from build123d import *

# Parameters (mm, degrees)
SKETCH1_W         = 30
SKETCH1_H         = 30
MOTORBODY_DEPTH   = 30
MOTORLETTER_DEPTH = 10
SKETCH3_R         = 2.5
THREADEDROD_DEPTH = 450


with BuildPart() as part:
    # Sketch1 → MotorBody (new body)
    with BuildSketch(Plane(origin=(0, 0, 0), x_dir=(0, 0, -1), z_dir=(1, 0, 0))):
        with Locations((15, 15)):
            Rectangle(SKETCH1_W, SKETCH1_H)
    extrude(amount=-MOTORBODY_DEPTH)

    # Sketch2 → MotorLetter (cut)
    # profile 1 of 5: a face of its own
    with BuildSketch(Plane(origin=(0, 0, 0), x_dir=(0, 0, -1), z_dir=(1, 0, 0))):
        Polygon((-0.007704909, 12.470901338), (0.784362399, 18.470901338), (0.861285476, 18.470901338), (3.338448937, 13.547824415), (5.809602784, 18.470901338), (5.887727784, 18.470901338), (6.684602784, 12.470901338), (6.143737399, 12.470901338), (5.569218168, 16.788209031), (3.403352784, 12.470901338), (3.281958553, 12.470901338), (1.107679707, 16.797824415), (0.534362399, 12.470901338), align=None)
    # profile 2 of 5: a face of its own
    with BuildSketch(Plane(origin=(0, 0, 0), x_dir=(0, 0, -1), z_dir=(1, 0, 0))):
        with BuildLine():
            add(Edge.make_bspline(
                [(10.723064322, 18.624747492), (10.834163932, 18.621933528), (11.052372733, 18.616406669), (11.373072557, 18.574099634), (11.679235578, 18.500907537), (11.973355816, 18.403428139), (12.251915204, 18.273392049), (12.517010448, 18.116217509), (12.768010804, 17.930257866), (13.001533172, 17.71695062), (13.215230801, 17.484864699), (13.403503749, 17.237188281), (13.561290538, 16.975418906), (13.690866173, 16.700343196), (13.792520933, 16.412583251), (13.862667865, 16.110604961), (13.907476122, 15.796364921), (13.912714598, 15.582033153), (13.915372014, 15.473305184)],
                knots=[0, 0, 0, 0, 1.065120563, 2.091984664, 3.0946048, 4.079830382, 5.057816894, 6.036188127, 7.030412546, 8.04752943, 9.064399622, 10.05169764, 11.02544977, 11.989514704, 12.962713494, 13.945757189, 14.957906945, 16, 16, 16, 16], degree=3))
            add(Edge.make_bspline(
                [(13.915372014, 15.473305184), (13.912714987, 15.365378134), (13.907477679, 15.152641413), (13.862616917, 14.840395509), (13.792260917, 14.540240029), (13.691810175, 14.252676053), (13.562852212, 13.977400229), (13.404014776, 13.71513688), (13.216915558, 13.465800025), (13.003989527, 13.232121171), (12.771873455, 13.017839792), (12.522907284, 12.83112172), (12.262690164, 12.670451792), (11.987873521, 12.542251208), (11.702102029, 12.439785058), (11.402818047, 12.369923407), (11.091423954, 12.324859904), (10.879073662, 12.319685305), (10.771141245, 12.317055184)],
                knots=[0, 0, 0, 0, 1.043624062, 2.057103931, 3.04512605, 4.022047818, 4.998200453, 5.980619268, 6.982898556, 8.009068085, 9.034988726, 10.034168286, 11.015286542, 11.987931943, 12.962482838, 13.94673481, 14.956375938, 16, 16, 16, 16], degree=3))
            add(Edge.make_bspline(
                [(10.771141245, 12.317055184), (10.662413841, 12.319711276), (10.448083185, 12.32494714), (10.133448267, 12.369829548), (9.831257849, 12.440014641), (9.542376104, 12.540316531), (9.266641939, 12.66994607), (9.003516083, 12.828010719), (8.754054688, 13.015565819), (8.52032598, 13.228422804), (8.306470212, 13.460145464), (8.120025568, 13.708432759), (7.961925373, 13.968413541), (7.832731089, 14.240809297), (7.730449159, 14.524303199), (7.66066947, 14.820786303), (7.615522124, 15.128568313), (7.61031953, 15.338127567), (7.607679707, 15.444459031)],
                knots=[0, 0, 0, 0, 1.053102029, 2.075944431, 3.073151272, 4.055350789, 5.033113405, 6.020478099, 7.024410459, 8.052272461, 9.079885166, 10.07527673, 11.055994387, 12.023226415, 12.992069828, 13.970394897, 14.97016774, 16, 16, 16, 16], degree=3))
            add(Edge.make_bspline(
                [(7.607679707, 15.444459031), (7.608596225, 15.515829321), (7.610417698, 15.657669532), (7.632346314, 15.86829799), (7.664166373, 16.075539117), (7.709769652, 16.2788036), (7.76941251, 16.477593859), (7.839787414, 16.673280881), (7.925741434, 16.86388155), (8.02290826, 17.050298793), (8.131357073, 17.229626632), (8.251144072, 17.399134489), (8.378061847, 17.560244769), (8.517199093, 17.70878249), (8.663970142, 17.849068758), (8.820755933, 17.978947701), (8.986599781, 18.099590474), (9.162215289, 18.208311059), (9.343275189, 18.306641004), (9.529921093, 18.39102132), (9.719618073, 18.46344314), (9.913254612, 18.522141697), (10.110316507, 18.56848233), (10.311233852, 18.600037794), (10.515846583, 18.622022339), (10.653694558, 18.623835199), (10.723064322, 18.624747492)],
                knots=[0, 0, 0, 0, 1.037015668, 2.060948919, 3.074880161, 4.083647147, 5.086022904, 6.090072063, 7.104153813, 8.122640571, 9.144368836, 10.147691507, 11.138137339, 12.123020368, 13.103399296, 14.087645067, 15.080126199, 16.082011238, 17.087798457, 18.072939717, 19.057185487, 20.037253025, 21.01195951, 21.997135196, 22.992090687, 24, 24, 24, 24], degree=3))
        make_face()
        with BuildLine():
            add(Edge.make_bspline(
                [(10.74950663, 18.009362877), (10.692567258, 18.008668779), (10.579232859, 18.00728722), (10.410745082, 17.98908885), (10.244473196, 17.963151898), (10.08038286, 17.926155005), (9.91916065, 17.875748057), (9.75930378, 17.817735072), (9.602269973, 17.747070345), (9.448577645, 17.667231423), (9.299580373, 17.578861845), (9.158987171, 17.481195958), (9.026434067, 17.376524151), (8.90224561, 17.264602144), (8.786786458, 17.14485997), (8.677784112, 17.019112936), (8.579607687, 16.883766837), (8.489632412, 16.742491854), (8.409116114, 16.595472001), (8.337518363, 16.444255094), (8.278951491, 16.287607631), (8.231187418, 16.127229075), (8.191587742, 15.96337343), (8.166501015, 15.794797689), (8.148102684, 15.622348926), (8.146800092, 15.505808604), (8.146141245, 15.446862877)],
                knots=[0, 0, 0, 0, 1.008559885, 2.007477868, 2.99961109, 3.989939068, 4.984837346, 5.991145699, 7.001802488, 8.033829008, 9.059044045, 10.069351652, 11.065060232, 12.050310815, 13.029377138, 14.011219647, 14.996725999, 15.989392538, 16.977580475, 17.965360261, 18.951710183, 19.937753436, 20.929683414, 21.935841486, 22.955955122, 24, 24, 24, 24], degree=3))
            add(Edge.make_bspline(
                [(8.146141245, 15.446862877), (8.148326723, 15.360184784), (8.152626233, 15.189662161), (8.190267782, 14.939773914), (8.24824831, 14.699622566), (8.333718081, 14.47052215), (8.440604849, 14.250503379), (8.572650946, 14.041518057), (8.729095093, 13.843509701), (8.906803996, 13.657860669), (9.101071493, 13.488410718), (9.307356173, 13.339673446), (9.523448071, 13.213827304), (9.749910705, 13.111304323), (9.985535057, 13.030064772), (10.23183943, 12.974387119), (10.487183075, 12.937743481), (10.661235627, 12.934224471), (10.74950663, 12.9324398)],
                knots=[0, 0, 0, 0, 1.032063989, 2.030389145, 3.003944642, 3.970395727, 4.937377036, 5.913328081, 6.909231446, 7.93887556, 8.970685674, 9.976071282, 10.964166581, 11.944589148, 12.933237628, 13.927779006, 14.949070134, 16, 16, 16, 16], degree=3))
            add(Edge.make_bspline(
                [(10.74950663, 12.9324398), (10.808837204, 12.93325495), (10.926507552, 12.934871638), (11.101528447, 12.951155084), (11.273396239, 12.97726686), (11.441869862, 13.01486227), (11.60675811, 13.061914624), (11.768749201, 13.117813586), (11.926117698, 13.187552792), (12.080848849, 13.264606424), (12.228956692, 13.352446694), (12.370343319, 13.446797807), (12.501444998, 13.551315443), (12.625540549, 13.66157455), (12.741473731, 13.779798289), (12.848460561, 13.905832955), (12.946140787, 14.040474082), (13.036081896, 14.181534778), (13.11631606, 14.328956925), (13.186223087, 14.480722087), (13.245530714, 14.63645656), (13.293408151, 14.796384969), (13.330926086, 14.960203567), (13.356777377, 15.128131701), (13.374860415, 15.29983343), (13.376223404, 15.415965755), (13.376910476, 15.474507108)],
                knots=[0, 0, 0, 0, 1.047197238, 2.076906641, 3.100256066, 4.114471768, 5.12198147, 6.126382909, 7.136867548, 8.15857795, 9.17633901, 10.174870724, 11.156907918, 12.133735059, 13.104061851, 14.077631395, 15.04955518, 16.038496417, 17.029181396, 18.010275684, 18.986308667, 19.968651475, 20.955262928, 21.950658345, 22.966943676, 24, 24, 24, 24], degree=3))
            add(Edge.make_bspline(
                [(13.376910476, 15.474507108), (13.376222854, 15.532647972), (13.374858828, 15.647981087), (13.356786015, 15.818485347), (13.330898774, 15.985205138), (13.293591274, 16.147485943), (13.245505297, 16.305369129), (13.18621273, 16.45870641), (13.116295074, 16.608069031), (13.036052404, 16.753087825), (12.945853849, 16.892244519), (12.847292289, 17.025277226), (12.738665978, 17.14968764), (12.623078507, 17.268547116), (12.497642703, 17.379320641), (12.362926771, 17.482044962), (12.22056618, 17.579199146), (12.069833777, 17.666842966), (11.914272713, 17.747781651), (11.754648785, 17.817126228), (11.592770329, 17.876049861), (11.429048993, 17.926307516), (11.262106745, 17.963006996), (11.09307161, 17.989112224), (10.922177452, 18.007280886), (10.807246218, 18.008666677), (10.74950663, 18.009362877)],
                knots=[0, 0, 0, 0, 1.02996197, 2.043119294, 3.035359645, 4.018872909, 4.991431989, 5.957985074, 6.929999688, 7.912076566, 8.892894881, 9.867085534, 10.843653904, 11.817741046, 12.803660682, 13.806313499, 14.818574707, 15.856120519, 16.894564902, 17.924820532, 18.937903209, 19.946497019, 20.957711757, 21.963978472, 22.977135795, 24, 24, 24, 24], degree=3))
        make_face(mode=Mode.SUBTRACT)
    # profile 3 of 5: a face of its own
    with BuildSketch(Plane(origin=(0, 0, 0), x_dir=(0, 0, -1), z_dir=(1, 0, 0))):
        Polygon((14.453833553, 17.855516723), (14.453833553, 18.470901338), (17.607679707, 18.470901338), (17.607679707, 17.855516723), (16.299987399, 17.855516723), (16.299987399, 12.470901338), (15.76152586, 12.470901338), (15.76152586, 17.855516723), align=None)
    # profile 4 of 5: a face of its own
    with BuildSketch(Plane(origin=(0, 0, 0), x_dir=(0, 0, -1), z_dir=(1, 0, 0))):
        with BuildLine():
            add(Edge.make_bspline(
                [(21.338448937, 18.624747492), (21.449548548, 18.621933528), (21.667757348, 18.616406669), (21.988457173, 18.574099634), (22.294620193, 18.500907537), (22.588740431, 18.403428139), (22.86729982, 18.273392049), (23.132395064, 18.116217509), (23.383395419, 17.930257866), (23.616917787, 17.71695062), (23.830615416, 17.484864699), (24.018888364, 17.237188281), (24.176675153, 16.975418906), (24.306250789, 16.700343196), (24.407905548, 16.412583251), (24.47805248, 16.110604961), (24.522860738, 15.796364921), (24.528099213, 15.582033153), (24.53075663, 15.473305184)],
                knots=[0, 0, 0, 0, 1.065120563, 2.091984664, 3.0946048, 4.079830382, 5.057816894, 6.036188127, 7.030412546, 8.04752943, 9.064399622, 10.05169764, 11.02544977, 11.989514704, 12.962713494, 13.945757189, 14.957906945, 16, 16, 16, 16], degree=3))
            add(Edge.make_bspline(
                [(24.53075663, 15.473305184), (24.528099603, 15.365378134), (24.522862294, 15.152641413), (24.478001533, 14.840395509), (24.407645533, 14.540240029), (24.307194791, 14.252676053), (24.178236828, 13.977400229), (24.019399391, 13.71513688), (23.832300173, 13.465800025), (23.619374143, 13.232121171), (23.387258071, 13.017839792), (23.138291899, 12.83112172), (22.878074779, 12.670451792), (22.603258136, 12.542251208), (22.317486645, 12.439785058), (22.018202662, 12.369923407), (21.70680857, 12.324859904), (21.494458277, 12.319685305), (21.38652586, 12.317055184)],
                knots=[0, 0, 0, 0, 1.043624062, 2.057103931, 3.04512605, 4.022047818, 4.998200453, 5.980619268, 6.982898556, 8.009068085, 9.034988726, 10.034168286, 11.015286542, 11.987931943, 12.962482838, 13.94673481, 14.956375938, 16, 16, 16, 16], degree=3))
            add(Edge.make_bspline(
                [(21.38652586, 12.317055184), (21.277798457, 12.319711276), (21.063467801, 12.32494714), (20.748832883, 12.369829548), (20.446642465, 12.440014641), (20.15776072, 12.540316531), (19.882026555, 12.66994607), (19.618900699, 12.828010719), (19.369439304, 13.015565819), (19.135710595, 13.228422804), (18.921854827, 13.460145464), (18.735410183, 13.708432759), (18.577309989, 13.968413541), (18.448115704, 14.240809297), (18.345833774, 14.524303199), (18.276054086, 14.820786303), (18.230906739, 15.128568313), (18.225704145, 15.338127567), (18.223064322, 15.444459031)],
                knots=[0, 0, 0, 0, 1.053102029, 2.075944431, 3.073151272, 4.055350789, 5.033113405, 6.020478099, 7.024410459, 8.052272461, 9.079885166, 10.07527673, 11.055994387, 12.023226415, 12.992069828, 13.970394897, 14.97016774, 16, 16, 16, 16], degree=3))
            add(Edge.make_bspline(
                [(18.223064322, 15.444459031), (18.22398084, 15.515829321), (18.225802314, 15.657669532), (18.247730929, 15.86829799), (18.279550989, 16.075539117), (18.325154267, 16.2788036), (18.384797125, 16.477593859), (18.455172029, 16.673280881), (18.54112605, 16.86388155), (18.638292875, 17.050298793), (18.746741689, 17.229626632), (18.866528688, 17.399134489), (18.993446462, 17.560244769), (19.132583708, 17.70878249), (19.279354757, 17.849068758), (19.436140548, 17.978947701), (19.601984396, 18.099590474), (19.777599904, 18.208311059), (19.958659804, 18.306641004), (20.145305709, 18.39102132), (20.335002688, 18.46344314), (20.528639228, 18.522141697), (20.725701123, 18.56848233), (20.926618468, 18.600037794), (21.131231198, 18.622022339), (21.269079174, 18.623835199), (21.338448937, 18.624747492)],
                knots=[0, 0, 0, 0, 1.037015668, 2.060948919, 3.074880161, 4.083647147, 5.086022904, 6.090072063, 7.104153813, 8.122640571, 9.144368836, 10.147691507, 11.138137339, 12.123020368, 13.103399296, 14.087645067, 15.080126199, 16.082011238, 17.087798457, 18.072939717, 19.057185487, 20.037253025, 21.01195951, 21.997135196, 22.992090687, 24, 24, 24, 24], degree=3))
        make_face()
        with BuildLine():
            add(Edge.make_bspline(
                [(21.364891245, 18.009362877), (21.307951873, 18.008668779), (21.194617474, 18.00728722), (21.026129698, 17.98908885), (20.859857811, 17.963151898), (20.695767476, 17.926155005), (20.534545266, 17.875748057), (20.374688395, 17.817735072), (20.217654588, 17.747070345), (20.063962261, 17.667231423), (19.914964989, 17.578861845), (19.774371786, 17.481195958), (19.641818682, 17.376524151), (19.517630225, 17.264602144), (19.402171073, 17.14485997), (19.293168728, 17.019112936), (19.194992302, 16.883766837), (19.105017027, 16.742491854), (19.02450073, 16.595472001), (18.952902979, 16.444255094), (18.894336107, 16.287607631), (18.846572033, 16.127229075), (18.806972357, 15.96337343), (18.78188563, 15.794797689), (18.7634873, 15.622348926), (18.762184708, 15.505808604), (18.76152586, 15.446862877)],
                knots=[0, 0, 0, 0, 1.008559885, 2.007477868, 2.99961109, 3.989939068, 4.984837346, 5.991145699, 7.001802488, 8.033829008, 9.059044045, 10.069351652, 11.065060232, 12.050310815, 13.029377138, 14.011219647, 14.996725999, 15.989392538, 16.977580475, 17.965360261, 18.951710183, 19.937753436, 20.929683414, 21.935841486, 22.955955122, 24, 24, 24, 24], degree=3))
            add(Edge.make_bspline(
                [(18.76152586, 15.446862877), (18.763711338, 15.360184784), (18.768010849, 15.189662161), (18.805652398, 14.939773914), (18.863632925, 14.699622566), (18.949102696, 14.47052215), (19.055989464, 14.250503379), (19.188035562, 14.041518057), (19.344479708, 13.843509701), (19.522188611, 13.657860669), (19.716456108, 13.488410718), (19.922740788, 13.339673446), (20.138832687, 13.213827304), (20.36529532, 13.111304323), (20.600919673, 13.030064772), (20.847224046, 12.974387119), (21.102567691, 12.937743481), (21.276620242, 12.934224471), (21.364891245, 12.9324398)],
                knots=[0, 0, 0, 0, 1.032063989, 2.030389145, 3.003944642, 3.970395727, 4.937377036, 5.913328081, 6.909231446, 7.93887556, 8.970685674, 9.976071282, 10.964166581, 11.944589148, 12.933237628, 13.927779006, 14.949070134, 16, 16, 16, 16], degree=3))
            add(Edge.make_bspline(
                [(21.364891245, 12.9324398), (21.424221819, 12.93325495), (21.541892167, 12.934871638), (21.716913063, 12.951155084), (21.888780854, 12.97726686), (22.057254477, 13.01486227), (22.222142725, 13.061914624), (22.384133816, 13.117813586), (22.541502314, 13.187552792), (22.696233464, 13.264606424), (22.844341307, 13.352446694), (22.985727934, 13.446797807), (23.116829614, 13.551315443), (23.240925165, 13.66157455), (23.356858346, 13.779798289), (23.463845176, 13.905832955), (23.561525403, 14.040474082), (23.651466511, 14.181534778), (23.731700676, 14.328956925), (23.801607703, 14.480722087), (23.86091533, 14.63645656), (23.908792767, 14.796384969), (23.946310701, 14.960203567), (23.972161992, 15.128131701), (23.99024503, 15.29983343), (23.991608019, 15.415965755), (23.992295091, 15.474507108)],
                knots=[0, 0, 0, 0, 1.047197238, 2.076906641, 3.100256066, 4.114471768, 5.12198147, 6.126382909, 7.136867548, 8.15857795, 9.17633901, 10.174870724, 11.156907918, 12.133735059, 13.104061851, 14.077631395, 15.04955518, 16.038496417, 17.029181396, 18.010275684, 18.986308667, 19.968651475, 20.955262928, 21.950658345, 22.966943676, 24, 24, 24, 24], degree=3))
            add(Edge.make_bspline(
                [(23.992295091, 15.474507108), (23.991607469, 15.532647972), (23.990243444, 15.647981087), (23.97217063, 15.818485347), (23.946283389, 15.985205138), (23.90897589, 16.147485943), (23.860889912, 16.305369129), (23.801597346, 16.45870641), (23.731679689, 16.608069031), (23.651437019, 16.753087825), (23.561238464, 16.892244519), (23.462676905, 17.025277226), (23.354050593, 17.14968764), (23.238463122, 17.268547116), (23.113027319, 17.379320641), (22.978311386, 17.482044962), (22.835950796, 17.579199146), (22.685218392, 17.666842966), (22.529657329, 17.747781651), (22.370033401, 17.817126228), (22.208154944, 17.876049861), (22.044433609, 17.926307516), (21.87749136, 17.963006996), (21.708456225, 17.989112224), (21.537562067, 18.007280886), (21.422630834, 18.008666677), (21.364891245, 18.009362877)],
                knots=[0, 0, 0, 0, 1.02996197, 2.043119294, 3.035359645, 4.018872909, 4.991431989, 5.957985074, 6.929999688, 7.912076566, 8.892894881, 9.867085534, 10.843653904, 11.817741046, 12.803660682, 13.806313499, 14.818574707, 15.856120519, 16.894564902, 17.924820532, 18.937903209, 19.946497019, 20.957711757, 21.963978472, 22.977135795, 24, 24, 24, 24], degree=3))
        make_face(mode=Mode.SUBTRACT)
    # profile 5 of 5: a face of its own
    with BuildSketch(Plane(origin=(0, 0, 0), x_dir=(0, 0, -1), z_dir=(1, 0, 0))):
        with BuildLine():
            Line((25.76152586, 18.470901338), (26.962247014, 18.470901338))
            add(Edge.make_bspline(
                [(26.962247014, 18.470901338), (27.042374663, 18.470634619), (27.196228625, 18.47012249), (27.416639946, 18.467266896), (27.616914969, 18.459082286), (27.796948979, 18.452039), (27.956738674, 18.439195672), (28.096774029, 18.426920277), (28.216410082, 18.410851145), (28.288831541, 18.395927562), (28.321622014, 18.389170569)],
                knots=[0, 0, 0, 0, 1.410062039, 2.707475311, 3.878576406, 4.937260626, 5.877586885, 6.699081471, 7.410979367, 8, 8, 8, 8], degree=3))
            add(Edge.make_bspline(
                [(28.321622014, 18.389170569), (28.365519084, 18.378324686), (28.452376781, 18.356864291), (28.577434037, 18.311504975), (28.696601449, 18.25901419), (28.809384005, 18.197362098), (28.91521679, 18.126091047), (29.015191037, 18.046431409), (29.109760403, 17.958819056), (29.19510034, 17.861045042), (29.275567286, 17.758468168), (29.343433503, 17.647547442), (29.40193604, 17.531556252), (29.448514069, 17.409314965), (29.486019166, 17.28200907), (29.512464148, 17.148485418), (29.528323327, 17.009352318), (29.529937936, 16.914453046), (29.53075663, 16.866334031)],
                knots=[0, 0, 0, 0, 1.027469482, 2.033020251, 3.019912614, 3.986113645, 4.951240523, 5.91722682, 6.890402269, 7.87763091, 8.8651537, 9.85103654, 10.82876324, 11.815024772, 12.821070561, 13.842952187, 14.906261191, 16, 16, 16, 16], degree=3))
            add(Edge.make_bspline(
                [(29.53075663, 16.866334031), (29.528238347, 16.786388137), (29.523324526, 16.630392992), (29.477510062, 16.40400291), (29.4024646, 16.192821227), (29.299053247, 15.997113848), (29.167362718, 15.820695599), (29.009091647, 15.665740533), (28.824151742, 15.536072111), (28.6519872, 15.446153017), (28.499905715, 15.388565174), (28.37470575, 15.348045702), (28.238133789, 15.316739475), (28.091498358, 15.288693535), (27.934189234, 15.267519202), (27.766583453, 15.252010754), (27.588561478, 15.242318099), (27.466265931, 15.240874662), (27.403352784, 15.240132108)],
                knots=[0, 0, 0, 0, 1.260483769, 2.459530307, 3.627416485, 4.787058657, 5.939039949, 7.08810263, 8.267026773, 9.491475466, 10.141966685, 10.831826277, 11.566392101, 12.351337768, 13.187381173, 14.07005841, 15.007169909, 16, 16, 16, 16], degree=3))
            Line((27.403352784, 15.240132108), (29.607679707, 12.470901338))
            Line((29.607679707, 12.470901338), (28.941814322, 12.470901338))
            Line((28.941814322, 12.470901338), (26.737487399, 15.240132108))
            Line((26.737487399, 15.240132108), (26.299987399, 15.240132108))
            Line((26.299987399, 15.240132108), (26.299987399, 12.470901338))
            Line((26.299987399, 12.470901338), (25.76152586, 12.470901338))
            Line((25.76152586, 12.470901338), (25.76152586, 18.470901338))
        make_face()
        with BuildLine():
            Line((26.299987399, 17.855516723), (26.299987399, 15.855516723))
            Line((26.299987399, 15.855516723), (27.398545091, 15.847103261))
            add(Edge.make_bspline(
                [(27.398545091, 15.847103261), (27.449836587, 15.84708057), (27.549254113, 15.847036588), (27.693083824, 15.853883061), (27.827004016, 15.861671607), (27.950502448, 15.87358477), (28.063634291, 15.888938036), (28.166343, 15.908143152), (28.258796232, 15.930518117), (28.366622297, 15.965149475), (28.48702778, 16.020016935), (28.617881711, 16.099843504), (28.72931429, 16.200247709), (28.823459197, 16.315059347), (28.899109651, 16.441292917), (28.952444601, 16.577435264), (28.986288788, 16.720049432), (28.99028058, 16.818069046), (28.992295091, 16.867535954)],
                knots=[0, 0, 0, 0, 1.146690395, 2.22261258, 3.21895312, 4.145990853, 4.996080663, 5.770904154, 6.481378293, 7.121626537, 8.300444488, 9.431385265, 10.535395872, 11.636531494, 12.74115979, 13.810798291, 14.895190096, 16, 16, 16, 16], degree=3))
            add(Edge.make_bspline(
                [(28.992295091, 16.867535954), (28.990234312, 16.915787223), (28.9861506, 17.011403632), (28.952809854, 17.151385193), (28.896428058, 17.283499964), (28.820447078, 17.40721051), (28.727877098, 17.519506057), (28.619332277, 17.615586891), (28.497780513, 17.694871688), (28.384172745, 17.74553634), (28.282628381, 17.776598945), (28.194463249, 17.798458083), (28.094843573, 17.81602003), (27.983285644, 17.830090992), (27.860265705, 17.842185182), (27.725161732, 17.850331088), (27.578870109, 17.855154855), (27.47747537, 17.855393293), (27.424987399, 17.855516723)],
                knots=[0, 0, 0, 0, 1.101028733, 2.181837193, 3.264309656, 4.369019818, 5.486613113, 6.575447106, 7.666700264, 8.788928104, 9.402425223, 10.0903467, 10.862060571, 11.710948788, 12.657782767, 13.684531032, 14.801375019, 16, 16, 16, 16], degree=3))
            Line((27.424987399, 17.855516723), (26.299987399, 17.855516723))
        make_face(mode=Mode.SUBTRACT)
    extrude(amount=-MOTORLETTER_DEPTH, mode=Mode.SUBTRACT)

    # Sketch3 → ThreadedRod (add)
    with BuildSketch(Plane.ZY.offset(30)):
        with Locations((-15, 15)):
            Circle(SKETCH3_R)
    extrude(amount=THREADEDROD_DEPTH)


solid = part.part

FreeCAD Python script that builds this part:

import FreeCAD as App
import Part
import Sketcher
from FreeCAD import Vector
Q = App.Units.Quantity


def add_polygon(sketch, points):
    """Adds a closed chain of lines whose ends are joined by coincident constraints."""
    first, n = sketch.GeometryCount, len(points)
    for a, b in zip(points, points[1:] + points[:1]):
        sketch.addGeometry(Part.LineSegment(App.Vector(*a, 0), App.Vector(*b, 0)), False)
    for i in range(n):
        sketch.addConstraint(Sketcher.Constraint("Coincident", first + i, 2, first + (i + 1) % n, 1))

doc = App.newDocument("Part")
body = doc.addObject("PartDesign::Body", "Body")

sketch1 = body.newObject("Sketcher::SketchObject", "Sketch")
sketch1.AttachmentSupport = (doc.getObject("YZ_Plane"), [""])
sketch1.MapMode = "FlatFace"
add_polygon(sketch1, [(30, 0), (0, 0), (0, -30), (30, -30)])
sketch1.addConstraint(Sketcher.Constraint("Horizontal", 0))
sketch1.addConstraint(Sketcher.Constraint("Vertical", 1))
sketch1.addConstraint(Sketcher.Constraint("Horizontal", 2))
sketch1.addConstraint(Sketcher.Constraint("Vertical", 3))
sketch1.addConstraint(Sketcher.Constraint("Coincident", 0, 2, -1, 1))
sketch1.addConstraint(Sketcher.Constraint("Equal", 2, 1))
sketch1.addConstraint(Sketcher.Constraint("DistanceX", 0, 2, 0, 1, Q("30 mm")))
pad1 = body.newObject("PartDesign::Pad", "Pad")
pad1.Profile = sketch1
pad1.Length = 30
pad1.Reversed = True

sketch2 = body.newObject("Sketcher::SketchObject", "Sketch001")
sketch2.AttachmentSupport = (doc.getObject("YZ_Plane"), [""])
sketch2.MapMode = "FlatFace"
add_polygon(sketch2, [(18.470901, -0.784362), (12.470901, 0.007705), (12.470901, -0.534362), (16.797824, -1.10768), (12.470901, -3.281959), (12.470901, -3.403353), (16.788209, -5.569218), (12.470901, -6.143737), (12.470901, -6.684603), (18.470901, -5.887728), (18.470901, -5.809603), (13.547824, -3.338449), (18.470901, -0.861285)])
sketch2.addGeometry(Part.BSplineCurve([Vector(18.624747, -10.723064, 0), Vector(18.621934, -10.834164, 0), Vector(18.616407, -11.052373, 0), Vector(18.5741, -11.373073, 0), Vector(18.500908, -11.679236, 0), Vector(18.403428, -11.973356, 0), Vector(18.273392, -12.251915, 0), Vector(18.116218, -12.51701, 0), Vector(17.930258, -12.768011, 0), Vector(17.716951, -13.001533, 0), Vector(17.484865, -13.215231, 0), Vector(17.237188, -13.403504, 0), Vector(16.975419, -13.561291, 0), Vector(16.700343, -13.690866, 0), Vector(16.412583, -13.792521, 0), Vector(16.110605, -13.862668, 0), Vector(15.796365, -13.907476, 0), Vector(15.582033, -13.912715, 0), Vector(15.473305, -13.915372, 0)], [4, 1, 1, 1, 1, 1, 1, 1, 1, 1, 1, 1, 1, 1, 1, 1, 4], [0, 1.065120563, 2.091984664, 3.0946048, 4.079830382, 5.057816894, 6.036188127, 7.030412546, 8.04752943, 9.064399622, 10.05169764, 11.02544977, 11.989514704, 12.962713494, 13.945757189, 14.957906945, 16], False, 3, [1, 1, 1, 1, 1, 1, 1, 1, 1, 1, 1, 1, 1, 1, 1, 1, 1, 1, 1], False), False)
sketch2.addGeometry(Part.BSplineCurve([Vector(15.444459, -7.60768, 0), Vector(15.515829, -7.608596, 0), Vector(15.65767, -7.610418, 0), Vector(15.868298, -7.632346, 0), Vector(16.075539, -7.664166, 0), Vector(16.278804, -7.70977, 0), Vector(16.477594, -7.769413, 0), Vector(16.673281, -7.839787, 0), Vector(16.863882, -7.925741, 0), Vector(17.050299, -8.022908, 0), Vector(17.229627, -8.131357, 0), Vector(17.399134, -8.251144, 0), Vector(17.560245, -8.378062, 0), Vector(17.708782, -8.517199, 0), Vector(17.849069, -8.66397, 0), Vector(17.978948, -8.820756, 0), Vector(18.09959, -8.9866, 0), Vector(18.208311, -9.162215, 0), Vector(18.306641, -9.343275, 0), Vector(18.391021, -9.529921, 0), Vector(18.463443, -9.719618, 0), Vector(18.522142, -9.913255, 0), Vector(18.568482, -10.110317, 0), Vector(18.600038, -10.311234, 0), Vector(18.622022, -10.515847, 0), Vector(18.623835, -10.653695, 0), Vector(18.624747, -10.723064, 0)], [4, 1, 1, 1, 1, 1, 1, 1, 1, 1, 1, 1, 1, 1, 1, 1, 1, 1, 1, 1, 1, 1, 1, 1, 4], [0, 1.037015668, 2.060948919, 3.074880161, 4.083647147, 5.086022904, 6.090072063, 7.104153813, 8.122640571, 9.144368836, 10.147691507, 11.138137339, 12.123020368, 13.103399296, 14.087645067, 15.080126199, 16.082011238, 17.087798457, 18.072939717, 19.057185487, 20.037253025, 21.01195951, 21.997135196, 22.992090687, 24], False, 3, [1, 1, 1, 1, 1, 1, 1, 1, 1, 1, 1, 1, 1, 1, 1, 1, 1, 1, 1, 1, 1, 1, 1, 1, 1, 1, 1], False), False)
sketch2.addGeometry(Part.BSplineCurve([Vector(12.317055, -10.771141, 0), Vector(12.319711, -10.662414, 0), Vector(12.324947, -10.448083, 0), Vector(12.36983, -10.133448, 0), Vector(12.440015, -9.831258, 0), Vector(12.540317, -9.542376, 0), Vector(12.669946, -9.266642, 0), Vector(12.828011, -9.003516, 0), Vector(13.015566, -8.754055, 0), Vector(13.228423, -8.520326, 0), Vector(13.460145, -8.30647, 0), Vector(13.708433, -8.120026, 0), Vector(13.968414, -7.961925, 0), Vector(14.240809, -7.832731, 0), Vector(14.524303, -7.730449, 0), Vector(14.820786, -7.660669, 0), Vector(15.128568, -7.615522, 0), Vector(15.338128, -7.61032, 0), Vector(15.444459, -7.60768, 0)], [4, 1, 1, 1, 1, 1, 1, 1, 1, 1, 1, 1, 1, 1, 1, 1, 4], [0, 1.053102029, 2.075944431, 3.073151272, 4.055350789, 5.033113405, 6.020478099, 7.024410459, 8.052272461, 9.079885166, 10.07527673, 11.055994387, 12.023226415, 12.992069828, 13.970394897, 14.97016774, 16], False, 3, [1, 1, 1, 1, 1, 1, 1, 1, 1, 1, 1, 1, 1, 1, 1, 1, 1, 1, 1], False), False)
sketch2.addGeometry(Part.BSplineCurve([Vector(15.473305, -13.915372, 0), Vector(15.365378, -13.912715, 0), Vector(15.152641, -13.907478, 0), Vector(14.840396, -13.862617, 0), Vector(14.54024, -13.792261, 0), Vector(14.252676, -13.69181, 0), Vector(13.9774, -13.562852, 0), Vector(13.715137, -13.404015, 0), Vector(13.4658, -13.216916, 0), Vector(13.232121, -13.00399, 0), Vector(13.01784, -12.771873, 0), Vector(12.831122, -12.522907, 0), Vector(12.670452, -12.26269, 0), Vector(12.542251, -11.987874, 0), Vector(12.439785, -11.702102, 0), Vector(12.369923, -11.402818, 0), Vector(12.32486, -11.091424, 0), Vector(12.319685, -10.879074, 0), Vector(12.317055, -10.771141, 0)], [4, 1, 1, 1, 1, 1, 1, 1, 1, 1, 1, 1, 1, 1, 1, 1, 4], [0, 1.043624062, 2.057103931, 3.04512605, 4.022047818, 4.998200453, 5.980619268, 6.982898556, 8.009068085, 9.034988726, 10.034168286, 11.015286542, 11.987931943, 12.962482838, 13.94673481, 14.956375938, 16], False, 3, [1, 1, 1, 1, 1, 1, 1, 1, 1, 1, 1, 1, 1, 1, 1, 1, 1, 1, 1], False), False)
sketch2.addGeometry(Part.BSplineCurve([Vector(15.474507, -13.37691, 0), Vector(15.532648, -13.376223, 0), Vector(15.647981, -13.374859, 0), Vector(15.818485, -13.356786, 0), Vector(15.985205, -13.330899, 0), Vector(16.147486, -13.293591, 0), Vector(16.305369, -13.245505, 0), Vector(16.458706, -13.186213, 0), Vector(16.608069, -13.116295, 0), Vector(16.753088, -13.036052, 0), Vector(16.892245, -12.945854, 0), Vector(17.025277, -12.847292, 0), Vector(17.149688, -12.738666, 0), Vector(17.268547, -12.623079, 0), Vector(17.379321, -12.497643, 0), Vector(17.482045, -12.362927, 0), Vector(17.579199, -12.220566, 0), Vector(17.666843, -12.069834, 0), Vector(17.747782, -11.914273, 0), Vector(17.817126, -11.754649, 0), Vector(17.87605, -11.59277, 0), Vector(17.926308, -11.429049, 0), Vector(17.963007, -11.262107, 0), Vector(17.989112, -11.093072, 0), Vector(18.007281, -10.922177, 0), Vector(18.008667, -10.807246, 0), Vector(18.009363, -10.749507, 0)], [4, 1, 1, 1, 1, 1, 1, 1, 1, 1, 1, 1, 1, 1, 1, 1, 1, 1, 1, 1, 1, 1, 1, 1, 4], [0, 1.02996197, 2.043119294, 3.035359645, 4.018872909, 4.991431989, 5.957985074, 6.929999688, 7.912076566, 8.892894881, 9.867085534, 10.843653904, 11.817741046, 12.803660682, 13.806313499, 14.818574707, 15.856120519, 16.894564902, 17.924820532, 18.937903209, 19.946497019, 20.957711757, 21.963978472, 22.977135795, 24], False, 3, [1, 1, 1, 1, 1, 1, 1, 1, 1, 1, 1, 1, 1, 1, 1, 1, 1, 1, 1, 1, 1, 1, 1, 1, 1, 1, 1], False), False)
sketch2.addGeometry(Part.BSplineCurve([Vector(12.93244, -10.749507, 0), Vector(12.933255, -10.808837, 0), Vector(12.934872, -10.926508, 0), Vector(12.951155, -11.101528, 0), Vector(12.977267, -11.273396, 0), Vector(13.014862, -11.44187, 0), Vector(13.061915, -11.606758, 0), Vector(13.117814, -11.768749, 0), Vector(13.187553, -11.926118, 0), Vector(13.264606, -12.080849, 0), Vector(13.352447, -12.228957, 0), Vector(13.446798, -12.370343, 0), Vector(13.551315, -12.501445, 0), Vector(13.661575, -12.625541, 0), Vector(13.779798, -12.741474, 0), Vector(13.905833, -12.848461, 0), Vector(14.040474, -12.946141, 0), Vector(14.181535, -13.036082, 0), Vector(14.328957, -13.116316, 0), Vector(14.480722, -13.186223, 0), Vector(14.636457, -13.245531, 0), Vector(14.796385, -13.293408, 0), Vector(14.960204, -13.330926, 0), Vector(15.128132, -13.356777, 0), Vector(15.299833, -13.37486, 0), Vector(15.415966, -13.376223, 0), Vector(15.474507, -13.37691, 0)], [4, 1, 1, 1, 1, 1, 1, 1, 1, 1, 1, 1, 1, 1, 1, 1, 1, 1, 1, 1, 1, 1, 1, 1, 4], [0, 1.047197238, 2.076906641, 3.100256066, 4.114471768, 5.12198147, 6.126382909, 7.136867548, 8.15857795, 9.17633901, 10.174870724, 11.156907918, 12.133735059, 13.104061851, 14.077631395, 15.04955518, 16.038496417, 17.029181396, 18.010275684, 18.986308667, 19.968651475, 20.955262928, 21.950658345, 22.966943676, 24], False, 3, [1, 1, 1, 1, 1, 1, 1, 1, 1, 1, 1, 1, 1, 1, 1, 1, 1, 1, 1, 1, 1, 1, 1, 1, 1, 1, 1], False), False)
sketch2.addGeometry(Part.BSplineCurve([Vector(15.446863, -8.146141, 0), Vector(15.360185, -8.148327, 0), Vector(15.189662, -8.152626, 0), Vector(14.939774, -8.190268, 0), Vector(14.699623, -8.248248, 0), Vector(14.470522, -8.333718, 0), Vector(14.250503, -8.440605, 0), Vector(14.041518, -8.572651, 0), Vector(13.84351, -8.729095, 0), Vector(13.657861, -8.906804, 0), Vector(13.488411, -9.101071, 0), Vector(13.339673, -9.307356, 0), Vector(13.213827, -9.523448, 0), Vector(13.111304, -9.749911, 0), Vector(13.030065, -9.985535, 0), Vector(12.974387, -10.231839, 0), Vector(12.937743, -10.487183, 0), Vector(12.934224, -10.661236, 0), Vector(12.93244, -10.749507, 0)], [4, 1, 1, 1, 1, 1, 1, 1, 1, 1, 1, 1, 1, 1, 1, 1, 4], [0, 1.032063989, 2.030389145, 3.003944642, 3.970395727, 4.937377036, 5.913328081, 6.909231446, 7.93887556, 8.970685674, 9.976071282, 10.964166581, 11.944589148, 12.933237628, 13.927779006, 14.949070134, 16], False, 3, [1, 1, 1, 1, 1, 1, 1, 1, 1, 1, 1, 1, 1, 1, 1, 1, 1, 1, 1], False), False)
sketch2.addGeometry(Part.BSplineCurve([Vector(18.009363, -10.749507, 0), Vector(18.008669, -10.692567, 0), Vector(18.007287, -10.579233, 0), Vector(17.989089, -10.410745, 0), Vector(17.963152, -10.244473, 0), Vector(17.926155, -10.080383, 0), Vector(17.875748, -9.919161, 0), Vector(17.817735, -9.759304, 0), Vector(17.74707, -9.60227, 0), Vector(17.667231, -9.448578, 0), Vector(17.578862, -9.29958, 0), Vector(17.481196, -9.158987, 0), Vector(17.376524, -9.026434, 0), Vector(17.264602, -8.902246, 0), Vector(17.14486, -8.786786, 0), Vector(17.019113, -8.677784, 0), Vector(16.883767, -8.579608, 0), Vector(16.742492, -8.489632, 0), Vector(16.595472, -8.409116, 0), Vector(16.444255, -8.337518, 0), Vector(16.287608, -8.278951, 0), Vector(16.127229, -8.231187, 0), Vector(15.963373, -8.191588, 0), Vector(15.794798, -8.166501, 0), Vector(15.622349, -8.148103, 0), Vector(15.505809, -8.1468, 0), Vector(15.446863, -8.146141, 0)], [4, 1, 1, 1, 1, 1, 1, 1, 1, 1, 1, 1, 1, 1, 1, 1, 1, 1, 1, 1, 1, 1, 1, 1, 4], [0, 1.008559885, 2.007477868, 2.99961109, 3.989939068, 4.984837346, 5.991145699, 7.001802488, 8.033829008, 9.059044045, 10.069351652, 11.065060232, 12.050310815, 13.029377138, 14.011219647, 14.996725999, 15.989392538, 16.977580475, 17.965360261, 18.951710183, 19.937753436, 20.929683414, 21.935841486, 22.955955122, 24], False, 3, [1, 1, 1, 1, 1, 1, 1, 1, 1, 1, 1, 1, 1, 1, 1, 1, 1, 1, 1, 1, 1, 1, 1, 1, 1, 1, 1], False), False)
add_polygon(sketch2, [(18.470901, -14.453834), (17.855517, -14.453834), (17.855517, -15.761526), (12.470901, -15.761526), (12.470901, -16.299987), (17.855517, -16.299987), (17.855517, -17.60768), (18.470901, -17.60768)])
sketch2.addGeometry(Part.BSplineCurve([Vector(18.624747, -21.338449, 0), Vector(18.621934, -21.449549, 0), Vector(18.616407, -21.667757, 0), Vector(18.5741, -21.988457, 0), Vector(18.500908, -22.29462, 0), Vector(18.403428, -22.58874, 0), Vector(18.273392, -22.8673, 0), Vector(18.116218, -23.132395, 0), Vector(17.930258, -23.383395, 0), Vector(17.716951, -23.616918, 0), Vector(17.484865, -23.830615, 0), Vector(17.237188, -24.018888, 0), Vector(16.975419, -24.176675, 0), Vector(16.700343, -24.306251, 0), Vector(16.412583, -24.407906, 0), Vector(16.110605, -24.478052, 0), Vector(15.796365, -24.522861, 0), Vector(15.582033, -24.528099, 0), Vector(15.473305, -24.530757, 0)], [4, 1, 1, 1, 1, 1, 1, 1, 1, 1, 1, 1, 1, 1, 1, 1, 4], [0, 1.065120563, 2.091984664, 3.0946048, 4.079830382, 5.057816894, 6.036188127, 7.030412546, 8.04752943, 9.064399622, 10.05169764, 11.02544977, 11.989514704, 12.962713494, 13.945757189, 14.957906945, 16], False, 3, [1, 1, 1, 1, 1, 1, 1, 1, 1, 1, 1, 1, 1, 1, 1, 1, 1, 1, 1], False), False)
sketch2.addGeometry(Part.BSplineCurve([Vector(15.444459, -18.223064, 0), Vector(15.515829, -18.223981, 0), Vector(15.65767, -18.225802, 0), Vector(15.868298, -18.247731, 0), Vector(16.075539, -18.279551, 0), Vector(16.278804, -18.325154, 0), Vector(16.477594, -18.384797, 0), Vector(16.673281, -18.455172, 0), Vector(16.863882, -18.541126, 0), Vector(17.050299, -18.638293, 0), Vector(17.229627, -18.746742, 0), Vector(17.399134, -18.866529, 0), Vector(17.560245, -18.993446, 0), Vector(17.708782, -19.132584, 0), Vector(17.849069, -19.279355, 0), Vector(17.978948, -19.436141, 0), Vector(18.09959, -19.601984, 0), Vector(18.208311, -19.7776, 0), Vector(18.306641, -19.95866, 0), Vector(18.391021, -20.145306, 0), Vector(18.463443, -20.335003, 0), Vector(18.522142, -20.528639, 0), Vector(18.568482, -20.725701, 0), Vector(18.600038, -20.926618, 0), Vector(18.622022, -21.131231, 0), Vector(18.623835, -21.269079, 0), Vector(18.624747, -21.338449, 0)], [4, 1, 1, 1, 1, 1, 1, 1, 1, 1, 1, 1, 1, 1, 1, 1, 1, 1, 1, 1, 1, 1, 1, 1, 4], [0, 1.037015668, 2.060948919, 3.074880161, 4.083647147, 5.086022904, 6.090072063, 7.104153813, 8.122640571, 9.144368836, 10.147691507, 11.138137339, 12.123020368, 13.103399296, 14.087645067, 15.080126199, 16.082011238, 17.087798457, 18.072939717, 19.057185487, 20.037253025, 21.01195951, 21.997135196, 22.992090687, 24], False, 3, [1, 1, 1, 1, 1, 1, 1, 1, 1, 1, 1, 1, 1, 1, 1, 1, 1, 1, 1, 1, 1, 1, 1, 1, 1, 1, 1], False), False)
sketch2.addGeometry(Part.BSplineCurve([Vector(12.317055, -21.386526, 0), Vector(12.319711, -21.277798, 0), Vector(12.324947, -21.063468, 0), Vector(12.36983, -20.748833, 0), Vector(12.440015, -20.446642, 0), Vector(12.540317, -20.157761, 0), Vector(12.669946, -19.882027, 0), Vector(12.828011, -19.618901, 0), Vector(13.015566, -19.369439, 0), Vector(13.228423, -19.135711, 0), Vector(13.460145, -18.921855, 0), Vector(13.708433, -18.73541, 0), Vector(13.968414, -18.57731, 0), Vector(14.240809, -18.448116, 0), Vector(14.524303, -18.345834, 0), Vector(14.820786, -18.276054, 0), Vector(15.128568, -18.230907, 0), Vector(15.338128, -18.225704, 0), Vector(15.444459, -18.223064, 0)], [4, 1, 1, 1, 1, 1, 1, 1, 1, 1, 1, 1, 1, 1, 1, 1, 4], [0, 1.053102029, 2.075944431, 3.073151272, 4.055350789, 5.033113405, 6.020478099, 7.024410459, 8.052272461, 9.079885166, 10.07527673, 11.055994387, 12.023226415, 12.992069828, 13.970394897, 14.97016774, 16], False, 3, [1, 1, 1, 1, 1, 1, 1, 1, 1, 1, 1, 1, 1, 1, 1, 1, 1, 1, 1], False), False)
sketch2.addGeometry(Part.BSplineCurve([Vector(15.473305, -24.530757, 0), Vector(15.365378, -24.5281, 0), Vector(15.152641, -24.522862, 0), Vector(14.840396, -24.478002, 0), Vector(14.54024, -24.407646, 0), Vector(14.252676, -24.307195, 0), Vector(13.9774, -24.178237, 0), Vector(13.715137, -24.019399, 0), Vector(13.4658, -23.8323, 0), Vector(13.232121, -23.619374, 0), Vector(13.01784, -23.387258, 0), Vector(12.831122, -23.138292, 0), Vector(12.670452, -22.878075, 0), Vector(12.542251, -22.603258, 0), Vector(12.439785, -22.317487, 0), Vector(12.369923, -22.018203, 0), Vector(12.32486, -21.706809, 0), Vector(12.319685, -21.494458, 0), Vector(12.317055, -21.386526, 0)], [4, 1, 1, 1, 1, 1, 1, 1, 1, 1, 1, 1, 1, 1, 1, 1, 4], [0, 1.043624062, 2.057103931, 3.04512605, 4.022047818, 4.998200453, 5.980619268, 6.982898556, 8.009068085, 9.034988726, 10.034168286, 11.015286542, 11.987931943, 12.962482838, 13.94673481, 14.956375938, 16], False, 3, [1, 1, 1, 1, 1, 1, 1, 1, 1, 1, 1, 1, 1, 1, 1, 1, 1, 1, 1], False), False)
sketch2.addGeometry(Part.BSplineCurve([Vector(15.474507, -23.992295, 0), Vector(15.532648, -23.991607, 0), Vector(15.647981, -23.990243, 0), Vector(15.818485, -23.972171, 0), Vector(15.985205, -23.946283, 0), Vector(16.147486, -23.908976, 0), Vector(16.305369, -23.86089, 0), Vector(16.458706, -23.801597, 0), Vector(16.608069, -23.73168, 0), Vector(16.753088, -23.651437, 0), Vector(16.892245, -23.561238, 0), Vector(17.025277, -23.462677, 0), Vector(17.149688, -23.354051, 0), Vector(17.268547, -23.238463, 0), Vector(17.379321, -23.113027, 0), Vector(17.482045, -22.978311, 0), Vector(17.579199, -22.835951, 0), Vector(17.666843, -22.685218, 0), Vector(17.747782, -22.529657, 0), Vector(17.817126, -22.370033, 0), Vector(17.87605, -22.208155, 0), Vector(17.926308, -22.044434, 0), Vector(17.963007, -21.877491, 0), Vector(17.989112, -21.708456, 0), Vector(18.007281, -21.537562, 0), Vector(18.008667, -21.422631, 0), Vector(18.009363, -21.364891, 0)], [4, 1, 1, 1, 1, 1, 1, 1, 1, 1, 1, 1, 1, 1, 1, 1, 1, 1, 1, 1, 1, 1, 1, 1, 4], [0, 1.02996197, 2.043119294, 3.035359645, 4.018872909, 4.991431989, 5.957985074, 6.929999688, 7.912076566, 8.892894881, 9.867085534, 10.843653904, 11.817741046, 12.803660682, 13.806313499, 14.818574707, 15.856120519, 16.894564902, 17.924820532, 18.937903209, 19.946497019, 20.957711757, 21.963978472, 22.977135795, 24], False, 3, [1, 1, 1, 1, 1, 1, 1, 1, 1, 1, 1, 1, 1, 1, 1, 1, 1, 1, 1, 1, 1, 1, 1, 1, 1, 1, 1], False), False)
sketch2.addGeometry(Part.BSplineCurve([Vector(12.93244, -21.364891, 0), Vector(12.933255, -21.424222, 0), Vector(12.934872, -21.541892, 0), Vector(12.951155, -21.716913, 0), Vector(12.977267, -21.888781, 0), Vector(13.014862, -22.057254, 0), Vector(13.061915, -22.222143, 0), Vector(13.117814, -22.384134, 0), Vector(13.187553, -22.541502, 0), Vector(13.264606, -22.696233, 0), Vector(13.352447, -22.844341, 0), Vector(13.446798, -22.985728, 0), Vector(13.551315, -23.11683, 0), Vector(13.661575, -23.240925, 0), Vector(13.779798, -23.356858, 0), Vector(13.905833, -23.463845, 0), Vector(14.040474, -23.561525, 0), Vector(14.181535, -23.651467, 0), Vector(14.328957, -23.731701, 0), Vector(14.480722, -23.801608, 0), Vector(14.636457, -23.860915, 0), Vector(14.796385, -23.908793, 0), Vector(14.960204, -23.946311, 0), Vector(15.128132, -23.972162, 0), Vector(15.299833, -23.990245, 0), Vector(15.415966, -23.991608, 0), Vector(15.474507, -23.992295, 0)], [4, 1, 1, 1, 1, 1, 1, 1, 1, 1, 1, 1, 1, 1, 1, 1, 1, 1, 1, 1, 1, 1, 1, 1, 4], [0, 1.047197238, 2.076906641, 3.100256066, 4.114471768, 5.12198147, 6.126382909, 7.136867548, 8.15857795, 9.17633901, 10.174870724, 11.156907918, 12.133735059, 13.104061851, 14.077631395, 15.04955518, 16.038496417, 17.029181396, 18.010275684, 18.986308667, 19.968651475, 20.955262928, 21.950658345, 22.966943676, 24], False, 3, [1, 1, 1, 1, 1, 1, 1, 1, 1, 1, 1, 1, 1, 1, 1, 1, 1, 1, 1, 1, 1, 1, 1, 1, 1, 1, 1], False), False)
sketch2.addGeometry(Part.BSplineCurve([Vector(15.446863, -18.761526, 0), Vector(15.360185, -18.763711, 0), Vector(15.189662, -18.768011, 0), Vector(14.939774, -18.805652, 0), Vector(14.699623, -18.863633, 0), Vector(14.470522, -18.949103, 0), Vector(14.250503, -19.055989, 0), Vector(14.041518, -19.188036, 0), Vector(13.84351, -19.34448, 0), Vector(13.657861, -19.522189, 0), Vector(13.488411, -19.716456, 0), Vector(13.339673, -19.922741, 0), Vector(13.213827, -20.138833, 0), Vector(13.111304, -20.365295, 0), Vector(13.030065, -20.60092, 0), Vector(12.974387, -20.847224, 0), Vector(12.937743, -21.102568, 0), Vector(12.934224, -21.27662, 0), Vector(12.93244, -21.364891, 0)], [4, 1, 1, 1, 1, 1, 1, 1, 1, 1, 1, 1, 1, 1, 1, 1, 4], [0, 1.032063989, 2.030389145, 3.003944642, 3.970395727, 4.937377036, 5.913328081, 6.909231446, 7.93887556, 8.970685674, 9.976071282, 10.964166581, 11.944589148, 12.933237628, 13.927779006, 14.949070134, 16], False, 3, [1, 1, 1, 1, 1, 1, 1, 1, 1, 1, 1, 1, 1, 1, 1, 1, 1, 1, 1], False), False)
sketch2.addGeometry(Part.BSplineCurve([Vector(18.009363, -21.364891, 0), Vector(18.008669, -21.307952, 0), Vector(18.007287, -21.194617, 0), Vector(17.989089, -21.02613, 0), Vector(17.963152, -20.859858, 0), Vector(17.926155, -20.695767, 0), Vector(17.875748, -20.534545, 0), Vector(17.817735, -20.374688, 0), Vector(17.74707, -20.217655, 0), Vector(17.667231, -20.063962, 0), Vector(17.578862, -19.914965, 0), Vector(17.481196, -19.774372, 0), Vector(17.376524, -19.641819, 0), Vector(17.264602, -19.51763, 0), Vector(17.14486, -19.402171, 0), Vector(17.019113, -19.293169, 0), Vector(16.883767, -19.194992, 0), Vector(16.742492, -19.105017, 0), Vector(16.595472, -19.024501, 0), Vector(16.444255, -18.952903, 0), Vector(16.287608, -18.894336, 0), Vector(16.127229, -18.846572, 0), Vector(15.963373, -18.806972, 0), Vector(15.794798, -18.781886, 0), Vector(15.622349, -18.763487, 0), Vector(15.505809, -18.762185, 0), Vector(15.446863, -18.761526, 0)], [4, 1, 1, 1, 1, 1, 1, 1, 1, 1, 1, 1, 1, 1, 1, 1, 1, 1, 1, 1, 1, 1, 1, 1, 4], [0, 1.008559885, 2.007477868, 2.99961109, 3.989939068, 4.984837346, 5.991145699, 7.001802488, 8.033829008, 9.059044045, 10.069351652, 11.065060232, 12.050310815, 13.029377138, 14.011219647, 14.996725999, 15.989392538, 16.977580475, 17.965360261, 18.951710183, 19.937753436, 20.929683414, 21.935841486, 22.955955122, 24], False, 3, [1, 1, 1, 1, 1, 1, 1, 1, 1, 1, 1, 1, 1, 1, 1, 1, 1, 1, 1, 1, 1, 1, 1, 1, 1, 1, 1], False), False)
sketch2.addGeometry(Part.LineSegment(Vector(18.470901, -26.962247, 0), Vector(18.470901, -25.761526, 0)), False)
sketch2.addGeometry(Part.LineSegment(Vector(18.470901, -25.761526, 0), Vector(12.470901, -25.761526, 0)), False)
sketch2.addGeometry(Part.LineSegment(Vector(12.470901, -25.761526, 0), Vector(12.470901, -26.299987, 0)), False)
sketch2.addGeometry(Part.LineSegment(Vector(12.470901, -26.299987, 0), Vector(15.240132, -26.299987, 0)), False)
sketch2.addGeometry(Part.LineSegment(Vector(15.240132, -26.299987, 0), Vector(15.240132, -26.737487, 0)), False)
sketch2.addGeometry(Part.LineSegment(Vector(15.240132, -26.737487, 0), Vector(12.470901, -28.941814, 0)), False)
sketch2.addGeometry(Part.LineSegment(Vector(12.470901, -28.941814, 0), Vector(12.470901, -29.60768, 0)), False)
sketch2.addGeometry(Part.LineSegment(Vector(12.470901, -29.60768, 0), Vector(15.240132, -27.403353, 0)), False)
sketch2.addGeometry(Part.BSplineCurve([Vector(16.866334, -29.530757, 0), Vector(16.786388, -29.528238, 0), Vector(16.630393, -29.523325, 0), Vector(16.404003, -29.47751, 0), Vector(16.192821, -29.402465, 0), Vector(15.997114, -29.299053, 0), Vector(15.820696, -29.167363, 0), Vector(15.665741, -29.009092, 0), Vector(15.536072, -28.824152, 0), Vector(15.446153, -28.651987, 0), Vector(15.388565, -28.499906, 0), Vector(15.348046, -28.374706, 0), Vector(15.316739, -28.238134, 0), Vector(15.288694, -28.091498, 0), Vector(15.267519, -27.934189, 0), Vector(15.252011, -27.766583, 0), Vector(15.242318, -27.588561, 0), Vector(15.240875, -27.466266, 0), Vector(15.240132, -27.403353, 0)], [4, 1, 1, 1, 1, 1, 1, 1, 1, 1, 1, 1, 1, 1, 1, 1, 4], [0, 1.260483769, 2.459530307, 3.627416485, 4.787058657, 5.939039949, 7.08810263, 8.267026773, 9.491475466, 10.141966685, 10.831826277, 11.566392101, 12.351337768, 13.187381173, 14.07005841, 15.007169909, 16], False, 3, [1, 1, 1, 1, 1, 1, 1, 1, 1, 1, 1, 1, 1, 1, 1, 1, 1, 1, 1], False), False)
sketch2.addGeometry(Part.BSplineCurve([Vector(18.389171, -28.321622, 0), Vector(18.378325, -28.365519, 0), Vector(18.356864, -28.452377, 0), Vector(18.311505, -28.577434, 0), Vector(18.259014, -28.696601, 0), Vector(18.197362, -28.809384, 0), Vector(18.126091, -28.915217, 0), Vector(18.046431, -29.015191, 0), Vector(17.958819, -29.10976, 0), Vector(17.861045, -29.1951, 0), Vector(17.758468, -29.275567, 0), Vector(17.647547, -29.343434, 0), Vector(17.531556, -29.401936, 0), Vector(17.409315, -29.448514, 0), Vector(17.282009, -29.486019, 0), Vector(17.148485, -29.512464, 0), Vector(17.009352, -29.528323, 0), Vector(16.914453, -29.529938, 0), Vector(16.866334, -29.530757, 0)], [4, 1, 1, 1, 1, 1, 1, 1, 1, 1, 1, 1, 1, 1, 1, 1, 4], [0, 1.027469482, 2.033020251, 3.019912614, 3.986113645, 4.951240523, 5.91722682, 6.890402269, 7.87763091, 8.8651537, 9.85103654, 10.82876324, 11.815024772, 12.821070561, 13.842952187, 14.906261191, 16], False, 3, [1, 1, 1, 1, 1, 1, 1, 1, 1, 1, 1, 1, 1, 1, 1, 1, 1, 1, 1], False), False)
sketch2.addGeometry(Part.BSplineCurve([Vector(18.470901, -26.962247, 0), Vector(18.470635, -27.042375, 0), Vector(18.470122, -27.196229, 0), Vector(18.467267, -27.41664, 0), Vector(18.459082, -27.616915, 0), Vector(18.452039, -27.796949, 0), Vector(18.439196, -27.956739, 0), Vector(18.42692, -28.096774, 0), Vector(18.410851, -28.21641, 0), Vector(18.395928, -28.288832, 0), Vector(18.389171, -28.321622, 0)], [4, 1, 1, 1, 1, 1, 1, 1, 4], [0, 1.410062039, 2.707475311, 3.878576406, 4.937260626, 5.877586885, 6.699081471, 7.410979367, 8], False, 3, [1, 1, 1, 1, 1, 1, 1, 1, 1, 1, 1], False), False)
sketch2.addGeometry(Part.LineSegment(Vector(17.855517, -26.299987, 0), Vector(17.855517, -27.424987, 0)), False)
sketch2.addGeometry(Part.BSplineCurve([Vector(16.867536, -28.992295, 0), Vector(16.915787, -28.990234, 0), Vector(17.011404, -28.986151, 0), Vector(17.151385, -28.95281, 0), Vector(17.2835, -28.896428, 0), Vector(17.407211, -28.820447, 0), Vector(17.519506, -28.727877, 0), Vector(17.615587, -28.619332, 0), Vector(17.694872, -28.497781, 0), Vector(17.745536, -28.384173, 0), Vector(17.776599, -28.282628, 0), Vector(17.798458, -28.194463, 0), Vector(17.81602, -28.094844, 0), Vector(17.830091, -27.983286, 0), Vector(17.842185, -27.860266, 0), Vector(17.850331, -27.725162, 0), Vector(17.855155, -27.57887, 0), Vector(17.855393, -27.477475, 0), Vector(17.855517, -27.424987, 0)], [4, 1, 1, 1, 1, 1, 1, 1, 1, 1, 1, 1, 1, 1, 1, 1, 4], [0, 1.101028733, 2.181837193, 3.264309656, 4.369019818, 5.486613113, 6.575447106, 7.666700264, 8.788928104, 9.402425223, 10.0903467, 10.862060571, 11.710948788, 12.657782767, 13.684531032, 14.801375019, 16], False, 3, [1, 1, 1, 1, 1, 1, 1, 1, 1, 1, 1, 1, 1, 1, 1, 1, 1, 1, 1], False), False)
sketch2.addGeometry(Part.BSplineCurve([Vector(15.847103, -27.398545, 0), Vector(15.847081, -27.449837, 0), Vector(15.847037, -27.549254, 0), Vector(15.853883, -27.693084, 0), Vector(15.861672, -27.827004, 0), Vector(15.873585, -27.950502, 0), Vector(15.888938, -28.063634, 0), Vector(15.908143, -28.166343, 0), Vector(15.930518, -28.258796, 0), Vector(15.965149, -28.366622, 0), Vector(16.020017, -28.487028, 0), Vector(16.099844, -28.617882, 0), Vector(16.200248, -28.729314, 0), Vector(16.315059, -28.823459, 0), Vector(16.441293, -28.89911, 0), Vector(16.577435, -28.952445, 0), Vector(16.720049, -28.986289, 0), Vector(16.818069, -28.990281, 0), Vector(16.867536, -28.992295, 0)], [4, 1, 1, 1, 1, 1, 1, 1, 1, 1, 1, 1, 1, 1, 1, 1, 4], [0, 1.146690395, 2.22261258, 3.21895312, 4.145990853, 4.996080663, 5.770904154, 6.481378293, 7.121626537, 8.300444488, 9.431385265, 10.535395872, 11.636531494, 12.74115979, 13.810798291, 14.895190096, 16], False, 3, [1, 1, 1, 1, 1, 1, 1, 1, 1, 1, 1, 1, 1, 1, 1, 1, 1, 1, 1], False), False)
sketch2.addGeometry(Part.LineSegment(Vector(15.847103, -27.398545, 0), Vector(15.855517, -26.299987, 0)), False)
sketch2.addGeometry(Part.LineSegment(Vector(15.855517, -26.299987, 0), Vector(17.855517, -26.299987, 0)), False)
sketch2.addConstraint(Sketcher.Constraint("Block", 13))
sketch2.addConstraint(Sketcher.Constraint("Block", 14))
sketch2.addConstraint(Sketcher.Constraint("Block", 15))
sketch2.addConstraint(Sketcher.Constraint("Block", 16))
sketch2.addConstraint(Sketcher.Constraint("Block", 17))
sketch2.addConstraint(Sketcher.Constraint("Block", 18))
sketch2.addConstraint(Sketcher.Constraint("Block", 19))
sketch2.addConstraint(Sketcher.Constraint("Block", 20))
sketch2.addConstraint(Sketcher.Constraint("Block", 29))
sketch2.addConstraint(Sketcher.Constraint("Block", 30))
sketch2.addConstraint(Sketcher.Constraint("Block", 31))
sketch2.addConstraint(Sketcher.Constraint("Block", 32))
sketch2.addConstraint(Sketcher.Constraint("Block", 33))
sketch2.addConstraint(Sketcher.Constraint("Block", 34))
sketch2.addConstraint(Sketcher.Constraint("Block", 35))
sketch2.addConstraint(Sketcher.Constraint("Block", 36))
sketch2.addConstraint(Sketcher.Constraint("Block", 45))
sketch2.addConstraint(Sketcher.Constraint("Block", 46))
sketch2.addConstraint(Sketcher.Constraint("Block", 47))
sketch2.addConstraint(Sketcher.Constraint("Block", 49))
sketch2.addConstraint(Sketcher.Constraint("Block", 50))
sketch2.addConstraint(Sketcher.Constraint("Coincident", 37, 2, 38, 1))
sketch2.addConstraint(Sketcher.Constraint("Coincident", 38, 2, 39, 1))
sketch2.addConstraint(Sketcher.Constraint("Coincident", 39, 2, 40, 1))
sketch2.addConstraint(Sketcher.Constraint("Coincident", 40, 2, 41, 1))
sketch2.addConstraint(Sketcher.Constraint("Coincident", 41, 2, 42, 1))
sketch2.addConstraint(Sketcher.Constraint("Coincident", 42, 2, 43, 1))
sketch2.addConstraint(Sketcher.Constraint("Coincident", 43, 2, 44, 1))
sketch2.addConstraint(Sketcher.Constraint("Coincident", 44, 2, 45, 2))
sketch2.addConstraint(Sketcher.Constraint("Coincident", 47, 1, 37, 1))
sketch2.addConstraint(Sketcher.Constraint("Coincident", 48, 2, 49, 2))
sketch2.addConstraint(Sketcher.Constraint("Coincident", 50, 1, 51, 1))
sketch2.addConstraint(Sketcher.Constraint("Coincident", 51, 2, 52, 1))
sketch2.addConstraint(Sketcher.Constraint("Coincident", 52, 2, 48, 1))
sketch2.addConstraint(Sketcher.Constraint("Vertical", 1))
sketch2.addConstraint(Sketcher.Constraint("Vertical", 4))
sketch2.addConstraint(Sketcher.Constraint("Vertical", 7))
sketch2.addConstraint(Sketcher.Constraint("Vertical", 9))
sketch2.addConstraint(Sketcher.Constraint("Vertical", 12))
sketch2.addConstraint(Sketcher.Constraint("Horizontal", 21))
sketch2.addConstraint(Sketcher.Constraint("Vertical", 22))
sketch2.addConstraint(Sketcher.Constraint("Horizontal", 23))
sketch2.addConstraint(Sketcher.Constraint("Vertical", 24))
sketch2.addConstraint(Sketcher.Constraint("Horizontal", 25))
sketch2.addConstraint(Sketcher.Constraint("Vertical", 26))
sketch2.addConstraint(Sketcher.Constraint("Horizontal", 27))
sketch2.addConstraint(Sketcher.Constraint("Vertical", 28))
sketch2.addConstraint(Sketcher.Constraint("Vertical", 37))
sketch2.addConstraint(Sketcher.Constraint("Horizontal", 38))
sketch2.addConstraint(Sketcher.Constraint("Vertical", 39))
sketch2.addConstraint(Sketcher.Constraint("Horizontal", 40))
sketch2.addConstraint(Sketcher.Constraint("Vertical", 41))
sketch2.addConstraint(Sketcher.Constraint("Vertical", 43))
sketch2.addConstraint(Sketcher.Constraint("Vertical", 48))
sketch2.addConstraint(Sketcher.Constraint("Horizontal", 52))
sketch2.addConstraint(Sketcher.Constraint("Parallel", 42, 44))
sketch2.addConstraint(Sketcher.Constraint("Horizontal", 40, 2, 51, 2))
sketch2.addConstraint(Sketcher.Constraint("Vertical", 1, 2, 3, 2))
sketch2.addConstraint(Sketcher.Constraint("Vertical", 4, 2, 6, 2))
sketch2.addConstraint(Sketcher.Constraint("Vertical", 9, 2, 11, 2))
sketch2.addConstraint(Sketcher.Constraint("Vertical", 7, 2, 23, 2))
sketch2.addConstraint(Sketcher.Constraint("Vertical", 22, 2, 25, 2))
sketch2.addConstraint(Sketcher.Constraint("Vertical", 12, 2, 27, 2))
sketch2.addConstraint(Sketcher.Constraint("Vertical", 28, 2, 37, 2))
sketch2.addConstraint(Sketcher.Constraint("Vertical", 24, 2, 38, 2))
sketch2.addConstraint(Sketcher.Constraint("Vertical", 39, 2, 42, 2))
sketch2.addConstraint(Sketcher.Constraint("Vertical", 41, 2, 44, 2))
sketch2.addConstraint(Sketcher.Constraint("Vertical", 26, 2, 48, 2))
sketch2.addConstraint(Sketcher.Constraint("Equal", 22, 26))
sketch2.addConstraint(Sketcher.Constraint("Equal", 24, 39))
sketch2.addConstraint(Sketcher.Constraint("DistanceX", 38, 2, 38, 1, Q("6 mm")))
sketch2.addConstraint(Sketcher.Constraint("DistanceX", 52, 1, 52, 2, Q("2 mm")))
sketch2.addConstraint(Sketcher.Constraint("DistanceY", 37, 2, 22, 2, Q("10 mm")))
sketch2.addConstraint(Sketcher.Constraint("Angle", 6, Q("-172.419985 deg")))
sketch2.addConstraint(Sketcher.Constraint("DistanceY", 48, 2, 48, 1, Q("1.125 mm")))
sketch2.addConstraint(Sketcher.Constraint("DistanceY", 41, 2, 41, 1, Q("0.4375 mm")))
sketch2.addConstraint(Sketcher.Constraint("DistanceY", 7, 2, 9, 2, Q("0.875 mm")))
sketch2.addConstraint(Sketcher.Constraint("DistanceY", 24, 2, 24, 1, Q("0.538462 mm")))
sketch2.addConstraint(Sketcher.Constraint("DistanceY", 22, 2, 8, 2, Q("9.873798 mm")))
sketch2.addConstraint(Sketcher.Constraint("Distance", 2, Q("4.36474 mm")))
sketch2.addConstraint(Sketcher.Constraint("Distance", 42, Q("3.539449 mm")))
sketch2.addConstraint(Sketcher.Constraint("DistanceY", 1, 2, 1, 1, Q("0.542067 mm")))
sketch2.addConstraint(Sketcher.Constraint("DistanceY", 4, 2, 4, 1, Q("0.121394 mm")))
sketch2.addConstraint(Sketcher.Constraint("DistanceY", 7, 2, 7, 1, Q("0.540865 mm")))
sketch2.addConstraint(Sketcher.Constraint("DistanceY", 9, 1, 9, 2, Q("0.078125 mm")))
sketch2.addConstraint(Sketcher.Constraint("DistanceY", 12, 1, 12, 2, Q("0.076923 mm")))
sketch2.addConstraint(Sketcher.Constraint("DistanceY", 22, 2, 22, 1, Q("1.307692 mm")))
sketch2.addConstraint(Sketcher.Constraint("DistanceY", 2, 2, -1, 1, Q("1.10768 mm")))
sketch2.addConstraint(Sketcher.Constraint("DistanceY", 3, 2, -1, 1, Q("3.281959 mm")))
sketch2.addConstraint(Sketcher.Constraint("DistanceX", -1, 1, 5, 2, Q("16.788209 mm")))
sketch2.addConstraint(Sketcher.Constraint("DistanceY", 10, 2, -1, 1, Q("3.338449 mm")))
sketch2.addConstraint(Sketcher.Constraint("DistanceY", 4, 2, 1, 2, Q("2.86899 mm")))
sketch2.addConstraint(Sketcher.Constraint("DistanceY", 9, 2, 12, 2, Q("5.02524 mm")))
sketch2.addConstraint(Sketcher.Constraint("Distance", 10, Q("5.508474 mm")))
pocket1 = body.newObject("PartDesign::Pocket", "Pocket")
pocket1.Profile = sketch2
pocket1.Length = 10

sketch3 = body.newObject("Sketcher::SketchObject", "Sketch002")
sketch3.AttachmentSupport = (doc.getObject("YZ_Plane"), [""])
sketch3.MapMode = "FlatFace"
sketch3.AttachmentOffset = App.Placement(Vector(0, 0, -30), App.Rotation())
sketch3.addGeometry(Part.Circle(Vector(15, -15, 0), Vector(0, 0, 1), 2.5), False)
sketch3.addConstraint(Sketcher.Constraint("Diameter", 0, Q("5 mm")))
sketch3.addConstraint(Sketcher.Constraint("DistanceX", -1, 1, 0, 3, Q("15 mm")))
sketch3.addConstraint(Sketcher.Constraint("DistanceY", 0, 3, -1, 1, Q("15 mm")))
pad2 = body.newObject("PartDesign::Pad", "Pad001")
pad2.Profile = sketch3
pad2.Length = 450
pad2.Reversed = True

doc.recompute()
